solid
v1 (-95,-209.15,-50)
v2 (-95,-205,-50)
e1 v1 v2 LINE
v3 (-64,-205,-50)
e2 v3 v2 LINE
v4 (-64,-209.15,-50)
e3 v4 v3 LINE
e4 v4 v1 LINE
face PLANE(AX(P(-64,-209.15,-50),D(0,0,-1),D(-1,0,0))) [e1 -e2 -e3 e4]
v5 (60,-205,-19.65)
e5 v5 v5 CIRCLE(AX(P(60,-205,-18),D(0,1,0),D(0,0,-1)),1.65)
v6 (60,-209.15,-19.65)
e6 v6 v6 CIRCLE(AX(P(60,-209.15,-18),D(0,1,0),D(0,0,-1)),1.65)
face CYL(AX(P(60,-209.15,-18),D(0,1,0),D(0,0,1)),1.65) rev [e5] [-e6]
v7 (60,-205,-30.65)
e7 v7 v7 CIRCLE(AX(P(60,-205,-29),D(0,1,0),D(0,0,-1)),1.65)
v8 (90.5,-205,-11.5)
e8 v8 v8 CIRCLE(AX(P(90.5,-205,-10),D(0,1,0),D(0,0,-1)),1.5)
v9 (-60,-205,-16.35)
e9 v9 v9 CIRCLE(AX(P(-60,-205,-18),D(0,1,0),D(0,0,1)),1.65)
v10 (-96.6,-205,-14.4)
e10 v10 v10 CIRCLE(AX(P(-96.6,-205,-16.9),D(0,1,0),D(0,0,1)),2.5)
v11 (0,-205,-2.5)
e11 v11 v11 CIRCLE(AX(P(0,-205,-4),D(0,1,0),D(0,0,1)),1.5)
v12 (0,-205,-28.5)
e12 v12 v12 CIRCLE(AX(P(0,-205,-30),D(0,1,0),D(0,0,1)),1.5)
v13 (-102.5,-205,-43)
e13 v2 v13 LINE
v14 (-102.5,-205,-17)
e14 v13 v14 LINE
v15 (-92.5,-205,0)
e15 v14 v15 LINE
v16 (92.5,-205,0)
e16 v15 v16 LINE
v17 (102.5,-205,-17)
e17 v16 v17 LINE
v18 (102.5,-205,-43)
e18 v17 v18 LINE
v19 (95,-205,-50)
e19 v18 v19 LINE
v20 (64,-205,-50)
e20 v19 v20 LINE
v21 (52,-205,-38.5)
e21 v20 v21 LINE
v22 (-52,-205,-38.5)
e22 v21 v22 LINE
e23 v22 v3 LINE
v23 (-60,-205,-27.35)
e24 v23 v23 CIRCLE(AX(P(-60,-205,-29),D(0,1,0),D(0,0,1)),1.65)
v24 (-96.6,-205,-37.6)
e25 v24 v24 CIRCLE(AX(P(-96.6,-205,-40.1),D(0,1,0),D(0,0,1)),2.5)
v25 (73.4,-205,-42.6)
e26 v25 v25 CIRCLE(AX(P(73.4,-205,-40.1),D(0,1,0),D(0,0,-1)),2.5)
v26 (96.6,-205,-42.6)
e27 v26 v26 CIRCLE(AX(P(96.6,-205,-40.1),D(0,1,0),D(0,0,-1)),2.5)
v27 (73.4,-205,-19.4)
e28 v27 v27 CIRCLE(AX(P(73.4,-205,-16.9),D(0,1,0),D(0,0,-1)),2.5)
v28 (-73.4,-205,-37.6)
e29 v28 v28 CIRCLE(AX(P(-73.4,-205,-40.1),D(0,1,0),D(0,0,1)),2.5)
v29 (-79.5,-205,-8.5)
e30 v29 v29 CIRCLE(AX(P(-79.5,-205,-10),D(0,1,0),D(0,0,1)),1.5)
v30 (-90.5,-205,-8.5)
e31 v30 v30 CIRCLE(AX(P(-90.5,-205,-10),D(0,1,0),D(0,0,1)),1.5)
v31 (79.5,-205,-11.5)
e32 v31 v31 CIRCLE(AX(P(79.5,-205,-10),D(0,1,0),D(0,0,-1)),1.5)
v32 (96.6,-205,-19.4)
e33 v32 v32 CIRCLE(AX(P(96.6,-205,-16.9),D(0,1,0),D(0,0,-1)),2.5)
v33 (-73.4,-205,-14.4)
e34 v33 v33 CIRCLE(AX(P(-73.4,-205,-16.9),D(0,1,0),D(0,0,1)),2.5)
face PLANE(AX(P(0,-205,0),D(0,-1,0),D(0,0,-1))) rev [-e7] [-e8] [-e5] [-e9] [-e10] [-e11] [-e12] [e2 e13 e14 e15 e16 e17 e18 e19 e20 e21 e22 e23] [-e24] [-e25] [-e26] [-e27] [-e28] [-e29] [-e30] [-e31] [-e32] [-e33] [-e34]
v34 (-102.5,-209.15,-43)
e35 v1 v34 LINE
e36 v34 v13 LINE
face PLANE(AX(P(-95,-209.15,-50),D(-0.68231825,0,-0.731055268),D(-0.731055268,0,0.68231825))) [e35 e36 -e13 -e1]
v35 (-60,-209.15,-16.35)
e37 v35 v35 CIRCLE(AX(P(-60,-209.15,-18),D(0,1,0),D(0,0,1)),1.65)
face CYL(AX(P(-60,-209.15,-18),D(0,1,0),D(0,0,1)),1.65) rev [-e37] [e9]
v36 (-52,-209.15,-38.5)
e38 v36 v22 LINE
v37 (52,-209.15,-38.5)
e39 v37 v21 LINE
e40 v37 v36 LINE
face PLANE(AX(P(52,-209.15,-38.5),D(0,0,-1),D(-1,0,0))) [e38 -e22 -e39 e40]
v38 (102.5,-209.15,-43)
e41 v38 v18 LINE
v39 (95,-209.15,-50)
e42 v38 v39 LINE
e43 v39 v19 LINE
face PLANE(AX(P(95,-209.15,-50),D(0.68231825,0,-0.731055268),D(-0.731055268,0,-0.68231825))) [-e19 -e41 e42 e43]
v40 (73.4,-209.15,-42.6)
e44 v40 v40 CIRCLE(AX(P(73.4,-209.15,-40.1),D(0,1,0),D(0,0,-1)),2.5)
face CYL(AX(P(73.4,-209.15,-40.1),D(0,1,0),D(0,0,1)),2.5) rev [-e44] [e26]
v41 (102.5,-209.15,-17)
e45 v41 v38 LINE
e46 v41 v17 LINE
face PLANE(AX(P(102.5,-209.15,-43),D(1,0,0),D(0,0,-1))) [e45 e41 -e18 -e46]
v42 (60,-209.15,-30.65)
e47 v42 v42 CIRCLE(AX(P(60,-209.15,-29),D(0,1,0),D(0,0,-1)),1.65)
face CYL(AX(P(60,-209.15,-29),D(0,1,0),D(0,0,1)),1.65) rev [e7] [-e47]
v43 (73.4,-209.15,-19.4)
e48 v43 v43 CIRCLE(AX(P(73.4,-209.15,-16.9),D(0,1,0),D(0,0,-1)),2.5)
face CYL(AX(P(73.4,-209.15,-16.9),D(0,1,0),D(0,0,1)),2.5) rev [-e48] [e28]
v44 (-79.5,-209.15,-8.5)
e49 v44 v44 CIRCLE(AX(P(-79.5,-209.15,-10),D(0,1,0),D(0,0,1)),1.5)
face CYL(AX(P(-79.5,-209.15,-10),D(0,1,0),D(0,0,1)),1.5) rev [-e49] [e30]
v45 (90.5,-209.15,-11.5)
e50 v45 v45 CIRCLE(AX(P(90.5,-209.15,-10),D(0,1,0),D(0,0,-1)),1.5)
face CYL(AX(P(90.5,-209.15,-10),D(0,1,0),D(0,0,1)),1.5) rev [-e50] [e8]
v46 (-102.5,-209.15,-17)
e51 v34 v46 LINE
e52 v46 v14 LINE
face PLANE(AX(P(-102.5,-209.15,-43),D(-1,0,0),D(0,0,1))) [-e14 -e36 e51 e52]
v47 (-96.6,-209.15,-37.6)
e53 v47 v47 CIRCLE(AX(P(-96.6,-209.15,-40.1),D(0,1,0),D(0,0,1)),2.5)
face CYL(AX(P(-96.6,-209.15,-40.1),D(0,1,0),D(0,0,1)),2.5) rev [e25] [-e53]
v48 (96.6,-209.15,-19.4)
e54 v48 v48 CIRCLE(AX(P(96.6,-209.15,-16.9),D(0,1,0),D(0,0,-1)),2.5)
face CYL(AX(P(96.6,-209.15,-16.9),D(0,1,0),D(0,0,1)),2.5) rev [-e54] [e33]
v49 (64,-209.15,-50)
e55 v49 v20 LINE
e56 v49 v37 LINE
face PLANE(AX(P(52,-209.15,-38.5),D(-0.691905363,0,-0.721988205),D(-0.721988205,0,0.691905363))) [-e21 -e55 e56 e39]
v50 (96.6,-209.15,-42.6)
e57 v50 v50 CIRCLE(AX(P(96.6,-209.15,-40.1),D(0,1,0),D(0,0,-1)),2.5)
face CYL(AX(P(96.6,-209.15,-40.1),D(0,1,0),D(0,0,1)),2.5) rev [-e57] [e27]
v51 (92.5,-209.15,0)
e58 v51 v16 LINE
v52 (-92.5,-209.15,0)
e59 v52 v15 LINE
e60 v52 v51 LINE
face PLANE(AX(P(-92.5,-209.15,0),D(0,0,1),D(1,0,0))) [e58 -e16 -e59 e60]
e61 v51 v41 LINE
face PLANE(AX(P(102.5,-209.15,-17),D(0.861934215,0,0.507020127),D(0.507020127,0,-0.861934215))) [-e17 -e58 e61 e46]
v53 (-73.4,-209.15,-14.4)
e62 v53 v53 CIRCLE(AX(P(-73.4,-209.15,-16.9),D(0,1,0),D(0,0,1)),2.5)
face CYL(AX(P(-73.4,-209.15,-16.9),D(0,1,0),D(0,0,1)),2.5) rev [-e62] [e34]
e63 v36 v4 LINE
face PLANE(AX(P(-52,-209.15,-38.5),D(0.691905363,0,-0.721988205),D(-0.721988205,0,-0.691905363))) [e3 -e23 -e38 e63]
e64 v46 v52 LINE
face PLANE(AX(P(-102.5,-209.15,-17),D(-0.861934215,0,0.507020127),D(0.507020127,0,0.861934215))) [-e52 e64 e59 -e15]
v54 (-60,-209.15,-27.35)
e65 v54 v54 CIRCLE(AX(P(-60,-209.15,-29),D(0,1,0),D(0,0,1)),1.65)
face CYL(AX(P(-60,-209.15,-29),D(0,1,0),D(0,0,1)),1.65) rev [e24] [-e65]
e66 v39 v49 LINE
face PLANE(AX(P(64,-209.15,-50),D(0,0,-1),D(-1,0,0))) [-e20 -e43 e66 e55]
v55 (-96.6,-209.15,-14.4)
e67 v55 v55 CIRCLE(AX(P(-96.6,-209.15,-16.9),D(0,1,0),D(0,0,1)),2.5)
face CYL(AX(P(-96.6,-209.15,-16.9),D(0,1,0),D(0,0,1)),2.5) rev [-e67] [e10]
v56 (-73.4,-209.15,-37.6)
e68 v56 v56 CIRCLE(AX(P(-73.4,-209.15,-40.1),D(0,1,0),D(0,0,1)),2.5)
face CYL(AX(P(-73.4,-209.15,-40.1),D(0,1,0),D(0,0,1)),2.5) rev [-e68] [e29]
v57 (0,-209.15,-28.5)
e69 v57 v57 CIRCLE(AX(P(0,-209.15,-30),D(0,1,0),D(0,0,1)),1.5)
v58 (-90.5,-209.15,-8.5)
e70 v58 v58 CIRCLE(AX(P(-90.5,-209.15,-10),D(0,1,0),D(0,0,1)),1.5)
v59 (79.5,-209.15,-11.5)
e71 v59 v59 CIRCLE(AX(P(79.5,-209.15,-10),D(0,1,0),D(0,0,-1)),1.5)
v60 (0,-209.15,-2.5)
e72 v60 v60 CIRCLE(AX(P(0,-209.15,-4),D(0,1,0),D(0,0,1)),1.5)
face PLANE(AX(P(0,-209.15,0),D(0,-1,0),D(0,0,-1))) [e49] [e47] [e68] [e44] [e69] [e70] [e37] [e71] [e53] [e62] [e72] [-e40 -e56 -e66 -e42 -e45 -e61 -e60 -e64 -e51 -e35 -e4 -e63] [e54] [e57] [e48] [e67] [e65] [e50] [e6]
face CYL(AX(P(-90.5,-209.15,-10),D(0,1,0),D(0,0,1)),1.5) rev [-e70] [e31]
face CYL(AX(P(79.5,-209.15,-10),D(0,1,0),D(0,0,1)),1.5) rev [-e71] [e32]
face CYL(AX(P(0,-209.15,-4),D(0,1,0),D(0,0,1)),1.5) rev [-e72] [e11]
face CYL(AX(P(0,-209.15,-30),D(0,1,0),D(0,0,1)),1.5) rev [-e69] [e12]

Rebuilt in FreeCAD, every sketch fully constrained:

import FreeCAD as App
import Part
import Sketcher

V = App.Vector
Q = App.Units.Quantity

doc = App.newDocument("Part")
body = doc.addObject("PartDesign::Body", "Body")

# Sketch on XZ plane
sketch1 = doc.addObject("Sketcher::SketchObject", "Sketch")
body.addObject(sketch1)
sketch1.AttachmentSupport = (doc.XZ_Plane, [""])
sketch1.MapMode = "FlatFace"
sketch1.AttachmentOffset = App.Placement(V(0, 0, 205), App.Rotation())
sketch1.addGeometry([
    Part.LineSegment(V(64, -50, 0), V(52, -38.5, 0)),  # 0
    Part.LineSegment(V(52, -38.5, 0), V(-52, -38.5, 0)),  # 1
    Part.LineSegment(V(-52, -38.5, 0), V(-64, -50, 0)),  # 2
    Part.LineSegment(V(-64, -50, 0), V(-95, -50, 0)),  # 3
    Part.LineSegment(V(-95, -50, 0), V(-102.5, -43, 0)),  # 4
    Part.LineSegment(V(-102.5, -43, 0), V(-102.5, -17, 0)),  # 5
    Part.LineSegment(V(-102.5, -17, 0), V(-92.5, 0, 0)),  # 6
    Part.LineSegment(V(-92.5, 0, 0), V(92.5, 0, 0)),  # 7
    Part.LineSegment(V(92.5, 0, 0), V(102.5, -17, 0)),  # 8
    Part.LineSegment(V(102.5, -17, 0), V(102.5, -43, 0)),  # 9
    Part.LineSegment(V(102.5, -43, 0), V(95, -50, 0)),  # 10
    Part.LineSegment(V(95, -50, 0), V(64, -50, 0)),  # 11
    Part.Circle(V(90.5, -10, 0), V(0, 0, 1), 1.5),  # 12
    Part.Circle(V(79.5, -10, 0), V(0, 0, 1), 1.5),  # 13
    Part.Circle(V(96.6, -16.9, 0), V(0, 0, 1), 2.5),  # 14
    Part.Circle(V(73.4, -16.9, 0), V(0, 0, 1), 2.5),  # 15
    Part.Circle(V(60, -18, 0), V(0, 0, 1), 1.6),  # 16
    Part.Circle(V(0, -4, 0), V(0, 0, 1), 1.5),  # 17
    Part.Circle(V(-79.5, -10, 0), V(0, 0, 1), 1.5),  # 18
    Part.Circle(V(-90.5, -10, 0), V(0, 0, 1), 1.5),  # 19
    Part.Circle(V(-73.4, -16.9, 0), V(0, 0, 1), 2.5),  # 20
    Part.Circle(V(-96.6, -16.9, 0), V(0, 0, 1), 2.5),  # 21
    Part.Circle(V(-60, -18, 0), V(0, 0, 1), 1.6),  # 22
    Part.Circle(V(60, -29, 0), V(0, 0, 1), 1.6),  # 23
    Part.Circle(V(96.6, -40.1, 0), V(0, 0, 1), 2.5),  # 24
    Part.Circle(V(73.4, -40.1, 0), V(0, 0, 1), 2.5),  # 25
    Part.Circle(V(0, -30, 0), V(0, 0, 1), 1.5),  # 26
    Part.Circle(V(-60, -29, 0), V(0, 0, 1), 1.6),  # 27
    Part.Circle(V(-73.4, -40.1, 0), V(0, 0, 1), 2.5),  # 28
    Part.Circle(V(-96.6, -40.1, 0), V(0, 0, 1), 2.5),  # 29
], False)
sketch1.addConstraint([
    Sketcher.Constraint("Coincident", 0, 2, 1, 1),
    Sketcher.Constraint("Coincident", 1, 2, 2, 1),
    Sketcher.Constraint("Coincident", 2, 2, 3, 1),
    Sketcher.Constraint("Coincident", 3, 2, 4, 1),
    Sketcher.Constraint("Coincident", 4, 2, 5, 1),
    Sketcher.Constraint("Coincident", 5, 2, 6, 1),
    Sketcher.Constraint("Coincident", 6, 2, 7, 1),
    Sketcher.Constraint("Coincident", 7, 2, 8, 1),
    Sketcher.Constraint("Coincident", 8, 2, 9, 1),
    Sketcher.Constraint("Coincident", 9, 2, 10, 1),
    Sketcher.Constraint("Coincident", 10, 2, 11, 1),
    Sketcher.Constraint("Coincident", 11, 2, 0, 1),
    Sketcher.Constraint("Horizontal", 1),
    Sketcher.Constraint("Horizontal", 3),
    Sketcher.Constraint("Vertical", 5),
    Sketcher.Constraint("Horizontal", 7),
    Sketcher.Constraint("Vertical", 9),
    Sketcher.Constraint("Horizontal", 11),
    Sketcher.Constraint("Equal", 12, 13),
    Sketcher.Constraint("Equal", 14, 15),
    Sketcher.Constraint("Equal", 13, 17),
    Sketcher.Constraint("Equal", 17, 18),
    Sketcher.Constraint("Equal", 18, 19),
    Sketcher.Constraint("Equal", 15, 20),
    Sketcher.Constraint("Equal", 20, 21),
    Sketcher.Constraint("Equal", 16, 22),
    Sketcher.Constraint("Equal", 22, 23),
    Sketcher.Constraint("Equal", 21, 24),
    Sketcher.Constraint("Equal", 24, 25),
    Sketcher.Constraint("Equal", 19, 26),
    Sketcher.Constraint("Equal", 23, 27),
    Sketcher.Constraint("Equal", 25, 28),
    Sketcher.Constraint("Equal", 28, 29),
    Sketcher.Constraint("Symmetric", 6, 2, 7, 2, -1, 1),
    Sketcher.Constraint("Symmetric", 13, 3, 18, 3, -2),
    Sketcher.Constraint("Symmetric", 12, 3, 19, 3, -2),
    Sketcher.Constraint("Symmetric", 15, 3, 20, 3, -2),
    Sketcher.Constraint("Symmetric", 14, 3, 21, 3, -2),
    Sketcher.Constraint("Symmetric", 16, 3, 22, 3, -2),
    Sketcher.Constraint("Symmetric", 23, 3, 27, 3, -2),
    Sketcher.Constraint("Symmetric", 25, 3, 28, 3, -2),
    Sketcher.Constraint("Symmetric", 24, 3, 29, 3, -2),
    Sketcher.Constraint("Symmetric", 5, 2, 8, 2, -2),
    Sketcher.Constraint("Symmetric", 3, 2, 10, 2, -2),
    Sketcher.Constraint("PointOnObject", 17, 3, -2),
    Sketcher.Constraint("PointOnObject", 26, 3, -2),
    Sketcher.Constraint("Horizontal", 12, 3, 13, 3),
    Sketcher.Constraint("Horizontal", 14, 3, 15, 3),
    Sketcher.Constraint("Horizontal", 24, 3, 25, 3),
    Sketcher.Constraint("Horizontal", 4, 2, 9, 2),
    Sketcher.Constraint("Vertical", 16, 3, 23, 3),
    Sketcher.Constraint("Vertical", 14, 3, 24, 3),
    Sketcher.Constraint("Vertical", 15, 3, 25, 3),
    Sketcher.Constraint("Equal", 3, 11),
    Sketcher.Constraint("Equal", 0, 2),
    Sketcher.Constraint("Diameter", 12, Q("3 mm")),
    Sketcher.Constraint("Diameter", 14, Q("5 mm")),
    Sketcher.Constraint("Diameter", 16, Q("3.3 mm")),
    Sketcher.Constraint("DistanceX", 1, 2, 1, 1, Q("104 mm")),
    Sketcher.Constraint("DistanceX", 3, 2, 3, 1, Q("31 mm")),
    Sketcher.Constraint("DistanceX", 7, 1, 7, 2, Q("185 mm")),
    Sketcher.Constraint("DistanceY", 5, 1, 5, 2, Q("26 mm")),
    Sketcher.Constraint("DistanceY", 12, 3, -1, 1, Q("10 mm")),
    Sketcher.Constraint("DistanceX", -1, 1, 16, 3, Q("60 mm")),
    Sketcher.Constraint("DistanceY", 16, 3, -1, 1, Q("18 mm")),
    Sketcher.Constraint("DistanceY", 17, 3, -1, 1, Q("4 mm")),
    Sketcher.Constraint("DistanceY", 23, 3, -1, 1, Q("29 mm")),
    Sketcher.Constraint("DistanceY", 26, 3, -1, 1, Q("30 mm")),
    Sketcher.Constraint("DistanceX", 2, 2, -1, 1, Q("64 mm")),
    Sketcher.Constraint("DistanceY", 2, 2, -1, 1, Q("50 mm")),
    Sketcher.Constraint("DistanceY", 4, 2, -1, 1, Q("43 mm")),
    Sketcher.Constraint("DistanceX", 13, 3, 12, 3, Q("11 mm")),
    Sketcher.Constraint("DistanceX", 18, 3, 13, 3, Q("159 mm")),
    Sketcher.Constraint("DistanceX", 4, 2, 19, 3, Q("12 mm")),
    Sketcher.Constraint("DistanceX", -1, 1, 14, 3, Q("96.6 mm")),
    Sketcher.Constraint("DistanceY", 14, 3, -1, 1, Q("16.9 mm")),
    Sketcher.Constraint("DistanceX", -1, 1, 15, 3, Q("73.4 mm")),
    Sketcher.Constraint("DistanceY", 24, 3, -1, 1, Q("40.1 mm")),
    Sketcher.Constraint("DistanceY", 0, 2, -1, 1, Q("38.5 mm")),
])
pad1 = doc.addObject("PartDesign::Pad", "Pad")
body.addObject(pad1)
pad1.Profile = sketch1
pad1.Length = 4.15

doc.recompute()
